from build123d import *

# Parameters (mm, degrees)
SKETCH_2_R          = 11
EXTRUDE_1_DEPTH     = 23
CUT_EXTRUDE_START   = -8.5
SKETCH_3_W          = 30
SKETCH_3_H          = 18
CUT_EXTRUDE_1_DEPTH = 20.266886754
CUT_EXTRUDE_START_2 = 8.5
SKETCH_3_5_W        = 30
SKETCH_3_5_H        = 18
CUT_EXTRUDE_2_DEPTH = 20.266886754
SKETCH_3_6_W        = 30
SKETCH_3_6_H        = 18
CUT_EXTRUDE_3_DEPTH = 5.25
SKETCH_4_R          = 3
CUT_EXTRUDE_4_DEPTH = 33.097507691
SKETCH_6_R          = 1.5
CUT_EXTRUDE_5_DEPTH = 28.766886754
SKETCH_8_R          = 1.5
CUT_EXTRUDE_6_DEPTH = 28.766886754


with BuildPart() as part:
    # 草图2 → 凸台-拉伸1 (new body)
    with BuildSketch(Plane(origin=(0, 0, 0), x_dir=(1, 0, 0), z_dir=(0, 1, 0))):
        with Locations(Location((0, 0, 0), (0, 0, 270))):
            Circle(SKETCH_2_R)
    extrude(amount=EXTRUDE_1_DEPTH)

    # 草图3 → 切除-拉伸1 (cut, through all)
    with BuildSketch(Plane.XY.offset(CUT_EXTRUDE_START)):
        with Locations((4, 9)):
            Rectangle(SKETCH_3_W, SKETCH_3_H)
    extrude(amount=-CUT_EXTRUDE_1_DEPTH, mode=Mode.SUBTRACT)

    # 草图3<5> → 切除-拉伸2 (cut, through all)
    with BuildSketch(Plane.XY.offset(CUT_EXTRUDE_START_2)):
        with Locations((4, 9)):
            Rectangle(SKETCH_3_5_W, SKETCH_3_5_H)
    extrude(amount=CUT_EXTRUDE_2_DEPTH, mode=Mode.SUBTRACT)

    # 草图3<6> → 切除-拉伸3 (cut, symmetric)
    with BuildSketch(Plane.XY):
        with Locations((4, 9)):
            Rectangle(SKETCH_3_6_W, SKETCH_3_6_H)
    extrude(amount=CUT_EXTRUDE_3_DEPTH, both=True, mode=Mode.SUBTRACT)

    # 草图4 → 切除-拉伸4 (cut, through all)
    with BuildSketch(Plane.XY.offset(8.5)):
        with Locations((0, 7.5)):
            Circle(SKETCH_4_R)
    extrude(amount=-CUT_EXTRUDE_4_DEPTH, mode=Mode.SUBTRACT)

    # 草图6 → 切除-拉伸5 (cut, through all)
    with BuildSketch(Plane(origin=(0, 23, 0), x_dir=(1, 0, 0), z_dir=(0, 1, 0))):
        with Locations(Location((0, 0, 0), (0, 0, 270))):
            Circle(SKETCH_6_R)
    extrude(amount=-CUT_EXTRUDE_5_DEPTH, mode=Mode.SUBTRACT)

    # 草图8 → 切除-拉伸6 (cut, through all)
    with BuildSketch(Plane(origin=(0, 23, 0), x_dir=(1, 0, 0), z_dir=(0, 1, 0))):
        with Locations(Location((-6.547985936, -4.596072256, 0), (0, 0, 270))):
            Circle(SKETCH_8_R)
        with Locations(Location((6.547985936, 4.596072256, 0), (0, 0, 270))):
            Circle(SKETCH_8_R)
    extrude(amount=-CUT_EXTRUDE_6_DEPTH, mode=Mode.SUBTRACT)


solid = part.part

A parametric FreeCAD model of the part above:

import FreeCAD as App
import Part
import Sketcher
from FreeCAD import Vector

doc = App.newDocument("Part")
body = doc.addObject("PartDesign::Body", "Body")

# Sketch on XZ plane
sketch1 = body.newObject("Sketcher::SketchObject", "Sketch")
sketch1.AttachmentSupport = (doc.getObject("XZ_Plane"), [""])
sketch1.MapMode = "FlatFace"
sketch1.addGeometry(Part.Circle(Vector(0, 0, 0), Vector(0, 0, 1), 11), False)
sketch1.addConstraint([
    Sketcher.Constraint("Coincident", 0, 3, -1, 1),
    Sketcher.Constraint("Diameter", 0, 22.0),
])
pad1 = body.newObject("PartDesign::Pad", "Pad")
pad1.Profile = sketch1
pad1.Length = 23
pad1.Reversed = True

# Sketch on XY plane
sketch2 = body.newObject("Sketcher::SketchObject", "Sketch001")
sketch2.AttachmentSupport = (doc.getObject("XY_Plane"), [""])
sketch2.MapMode = "FlatFace"
sketch2.AttachmentOffset = App.Placement(Vector(0, 0, -8.5), App.Rotation())
sketch2.addGeometry([
    Part.LineSegment(Vector(-11, 18, 0), Vector(-11, 0, 0)),
    Part.LineSegment(Vector(-11, 0, 0), Vector(19, 0, 0)),
    Part.LineSegment(Vector(19, 0, 0), Vector(19, 18, 0)),
    Part.LineSegment(Vector(19, 18, 0), Vector(-11, 18, 0)),
], False)
sketch2.addConstraint([
    Sketcher.Constraint("Coincident", 0, 2, 1, 1),
    Sketcher.Constraint("Coincident", 1, 2, 2, 1),
    Sketcher.Constraint("Coincident", 2, 2, 3, 1),
    Sketcher.Constraint("Coincident", 3, 2, 0, 1),
    Sketcher.Constraint("Vertical", 0),
    Sketcher.Constraint("Horizontal", 1),
    Sketcher.Constraint("Vertical", 2),
    Sketcher.Constraint("Horizontal", 3),
    Sketcher.Constraint("PointOnObject", 0, 2, -1),
    Sketcher.Constraint("DistanceX", 1, 1, 1, 2, 30.0),
    Sketcher.Constraint("DistanceY", 0, 2, 0, 1, 18.0),
    Sketcher.Constraint("DistanceX", 0, 2, -1, 1, 11.0),
])
pocket1 = body.newObject("PartDesign::Pocket", "Pocket")
pocket1.Profile = sketch2
pocket1.Type = "ThroughAll"

# Sketch on XY plane
sketch3 = body.newObject("Sketcher::SketchObject", "Sketch002")
sketch3.AttachmentSupport = (doc.getObject("XY_Plane"), [""])
sketch3.MapMode = "FlatFace"
sketch3.AttachmentOffset = App.Placement(Vector(0, 0, 8.5), App.Rotation())
sketch3.addGeometry([
    Part.LineSegment(Vector(-11, 18, 0), Vector(-11, 0, 0)),
    Part.LineSegment(Vector(-11, 0, 0), Vector(19, 0, 0)),
    Part.LineSegment(Vector(19, 0, 0), Vector(19, 18, 0)),
    Part.LineSegment(Vector(19, 18, 0), Vector(-11, 18, 0)),
], False)
sketch3.addConstraint([
    Sketcher.Constraint("Coincident", 0, 2, 1, 1),
    Sketcher.Constraint("Coincident", 1, 2, 2, 1),
    Sketcher.Constraint("Coincident", 2, 2, 3, 1),
    Sketcher.Constraint("Coincident", 3, 2, 0, 1),
    Sketcher.Constraint("Vertical", 0),
    Sketcher.Constraint("Horizontal", 1),
    Sketcher.Constraint("Vertical", 2),
    Sketcher.Constraint("Horizontal", 3),
    Sketcher.Constraint("PointOnObject", 0, 2, -1),
    Sketcher.Constraint("DistanceX", 1, 1, 1, 2, 30.0),
    Sketcher.Constraint("DistanceY", 0, 2, 0, 1, 18.0),
    Sketcher.Constraint("DistanceX", 0, 2, -1, 1, 11.0),
])
pocket2 = body.newObject("PartDesign::Pocket", "Pocket001")
pocket2.Profile = sketch3
pocket2.Type = "ThroughAll"
pocket2.Reversed = True

# Sketch on XY plane
sketch4 = body.newObject("Sketcher::SketchObject", "Sketch003")
sketch4.AttachmentSupport = (doc.getObject("XY_Plane"), [""])
sketch4.MapMode = "FlatFace"
sketch4.addGeometry([
    Part.LineSegment(Vector(-11, 18, 0), Vector(-11, 0, 0)),
    Part.LineSegment(Vector(-11, 0, 0), Vector(19, 0, 0)),
    Part.LineSegment(Vector(19, 0, 0), Vector(19, 18, 0)),
    Part.LineSegment(Vector(19, 18, 0), Vector(-11, 18, 0)),
], False)
sketch4.addConstraint([
    Sketcher.Constraint("Coincident", 0, 2, 1, 1),
    Sketcher.Constraint("Coincident", 1, 2, 2, 1),
    Sketcher.Constraint("Coincident", 2, 2, 3, 1),
    Sketcher.Constraint("Coincident", 3, 2, 0, 1),
    Sketcher.Constraint("Vertical", 0),
    Sketcher.Constraint("Horizontal", 1),
    Sketcher.Constraint("Vertical", 2),
    Sketcher.Constraint("Horizontal", 3),
    Sketcher.Constraint("PointOnObject", 0, 2, -1),
    Sketcher.Constraint("DistanceX", 1, 1, 1, 2, 30.0),
    Sketcher.Constraint("DistanceY", 0, 2, 0, 1, 18.0),
    Sketcher.Constraint("DistanceX", 0, 2, -1, 1, 11.0),
])
pocket3 = body.newObject("PartDesign::Pocket", "Pocket002")
pocket3.Profile = sketch4
pocket3.Length = 10.5
pocket3.Midplane = True

# Sketch on XY plane
sketch5 = body.newObject("Sketcher::SketchObject", "Sketch004")
sketch5.AttachmentSupport = (doc.getObject("XY_Plane"), [""])
sketch5.MapMode = "FlatFace"
sketch5.AttachmentOffset = App.Placement(Vector(0, 0, 8.5), App.Rotation())
sketch5.addGeometry(Part.Circle(Vector(0, 7.5, 0), Vector(0, 0, 1), 3), False)
sketch5.addConstraint([
    Sketcher.Constraint("PointOnObject", 0, 3, -2),
    Sketcher.Constraint("Diameter", 0, 6.0),
    Sketcher.Constraint("DistanceY", -1, 1, 0, 3, 7.5),
])
pocket4 = body.newObject("PartDesign::Pocket", "Pocket003")
pocket4.Profile = sketch5
pocket4.Type = "ThroughAll"

# Sketch on XZ plane
sketch6 = body.newObject("Sketcher::SketchObject", "Sketch005")
sketch6.AttachmentSupport = (doc.getObject("XZ_Plane"), [""])
sketch6.MapMode = "FlatFace"
sketch6.AttachmentOffset = App.Placement(Vector(0, 0, -23), App.Rotation())
sketch6.addGeometry(Part.Circle(Vector(0, 0, 0), Vector(0, 0, 1), 1.5), False)
sketch6.addConstraint([
    Sketcher.Constraint("Coincident", 0, 3, -1, 1),
    Sketcher.Constraint("Diameter", 0, 3.0),
])
pocket5 = body.newObject("PartDesign::Pocket", "Pocket004")
pocket5.Profile = sketch6
pocket5.Type = "ThroughAll"
pocket5.Reversed = True

# Sketch on XZ plane
sketch7 = body.newObject("Sketcher::SketchObject", "Sketch006")
sketch7.AttachmentSupport = (doc.getObject("XZ_Plane"), [""])
sketch7.MapMode = "FlatFace"
sketch7.AttachmentOffset = App.Placement(Vector(0, 0, -23), App.Rotation())
sketch7.addGeometry([
    Part.Circle(Vector(-6.5, 4.6, 0), Vector(0, 0, 1), 1.5),
    Part.Circle(Vector(6.5, -4.6, 0), Vector(0, 0, 1), 1.5),
], False)
sketch7.addConstraint([
    Sketcher.Constraint("Equal", 0, 1),
    Sketcher.Constraint("Symmetric", 0, 3, 1, 3, -1, 1),
    Sketcher.Constraint("Diameter", 0, 3.0),
    Sketcher.Constraint("DistanceX", 0, 3, 1, 3, 13.095972),
    Sketcher.Constraint("DistanceY", -1, 1, 0, 3, 4.596072),
])
pocket6 = body.newObject("PartDesign::Pocket", "Pocket005")
pocket6.Profile = sketch7
pocket6.Type = "ThroughAll"
pocket6.Reversed = True

doc.recompute()
